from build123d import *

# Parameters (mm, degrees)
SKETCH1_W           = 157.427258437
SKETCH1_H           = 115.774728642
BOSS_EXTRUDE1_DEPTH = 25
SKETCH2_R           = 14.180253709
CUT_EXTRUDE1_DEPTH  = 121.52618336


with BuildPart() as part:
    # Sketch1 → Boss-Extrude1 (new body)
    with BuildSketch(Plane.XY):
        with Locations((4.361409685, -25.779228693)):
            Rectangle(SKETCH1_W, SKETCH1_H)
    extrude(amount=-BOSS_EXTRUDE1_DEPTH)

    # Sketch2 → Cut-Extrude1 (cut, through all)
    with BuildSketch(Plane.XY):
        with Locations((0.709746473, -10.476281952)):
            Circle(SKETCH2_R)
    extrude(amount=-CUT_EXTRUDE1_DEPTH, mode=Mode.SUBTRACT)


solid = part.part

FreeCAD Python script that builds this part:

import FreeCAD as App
import Part
import Sketcher

doc = App.newDocument("Part")
params = doc.addObject("Spreadsheet::Sheet", "Params")
for row, (alias, value) in enumerate([
    ("pad1_length", "25 mm"),
], start=1):
    params.set(f"A{row}", alias)
    params.set(f"B{row}", "=" + value)
    params.setAlias(f"B{row}", alias)

body = doc.addObject("PartDesign::Body", "Body")

# Sketch on XY plane
sketch1 = body.newObject("Sketcher::SketchObject", "Sketch")
sketch1.AttachmentSupport = (doc.getObject("XY_Plane"), [""])
sketch1.MapMode = "FlatFace"
sketch1.addGeometry([
    Part.LineSegment(App.Vector(-74, 32, 0), App.Vector(-74, -84, 0)),
    Part.LineSegment(App.Vector(-74, -84, 0), App.Vector(83, -84, 0)),
    Part.LineSegment(App.Vector(83, -84, 0), App.Vector(83, 32, 0)),
    Part.LineSegment(App.Vector(83, 32, 0), App.Vector(-74, 32, 0)),
], False)
sketch1.addConstraint([
    Sketcher.Constraint("Coincident", 0, 2, 1, 1),
    Sketcher.Constraint("Coincident", 1, 2, 2, 1),
    Sketcher.Constraint("Coincident", 2, 2, 3, 1),
    Sketcher.Constraint("Coincident", 3, 2, 0, 1),
    Sketcher.Constraint("Vertical", 0),
    Sketcher.Constraint("Horizontal", 1),
    Sketcher.Constraint("Vertical", 2),
    Sketcher.Constraint("Horizontal", 3),
    Sketcher.Constraint("DistanceX", 1, 1, 1, 2, 157.427258),
    Sketcher.Constraint("DistanceY", 0, 2, 0, 1, 115.774729),
    Sketcher.Constraint("DistanceX", 0, 2, -1, 1, 74.35222),
    Sketcher.Constraint("DistanceY", 0, 2, -1, 1, 83.666593),
])
pad1 = body.newObject("PartDesign::Pad", "Pad")
pad1.Profile = sketch1
pad1.setExpression("Length", "Params.pad1_length")
pad1.Reversed = True

# Sketch on XY plane
sketch2 = body.newObject("Sketcher::SketchObject", "Sketch001")
sketch2.AttachmentSupport = (doc.getObject("XY_Plane"), [""])
sketch2.MapMode = "FlatFace"
sketch2.addGeometry(Part.Circle(App.Vector(1, -10, 0), App.Vector(0, 0, 1), 14), False)
sketch2.addConstraint([
    Sketcher.Constraint("Diameter", 0, 28.360507),
    Sketcher.Constraint("DistanceY", 0, 3, -1, 1, 10.476282),
    Sketcher.Constraint("DistanceX", -1, 1, 0, 3, 0.709746),
])
pocket1 = body.newObject("PartDesign::Pocket", "Pocket")
pocket1.Profile = sketch2
pocket1.Type = "ThroughAll"

doc.recompute()
